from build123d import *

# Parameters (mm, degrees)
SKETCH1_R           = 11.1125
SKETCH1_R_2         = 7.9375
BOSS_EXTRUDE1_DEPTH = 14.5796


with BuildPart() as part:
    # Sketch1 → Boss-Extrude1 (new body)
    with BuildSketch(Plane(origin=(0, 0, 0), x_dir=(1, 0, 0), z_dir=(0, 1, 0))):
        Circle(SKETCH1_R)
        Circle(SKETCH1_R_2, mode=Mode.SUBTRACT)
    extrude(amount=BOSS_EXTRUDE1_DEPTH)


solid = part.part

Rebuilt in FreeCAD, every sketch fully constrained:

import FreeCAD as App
import Part
import Sketcher
Q = App.Units.Quantity

doc = App.newDocument("Part")
body = doc.addObject("PartDesign::Body", "Body")

# Sketch on XZ plane
sketch1 = doc.addObject("Sketcher::SketchObject", "Sketch")
body.addObject(sketch1)
sketch1.AttachmentSupport = (doc.XZ_Plane, [""])
sketch1.MapMode = "FlatFace"
sketch1.addGeometry(Part.Circle(App.Vector(0, 0, 0), App.Vector(0, 0, 1), 11), False)
sketch1.addGeometry(Part.Circle(App.Vector(0, 0, 0), App.Vector(0, 0, 1), 8), False)
sketch1.addConstraint(Sketcher.Constraint("Coincident", 0, 3, -1, 1))
sketch1.addConstraint(Sketcher.Constraint("Coincident", 1, 3, -1, 1))
sketch1.addConstraint(Sketcher.Constraint("Diameter", 0, Q("0.875 in")))
sketch1.addConstraint(Sketcher.Constraint("Diameter", 1, Q("0.625 in")))
pad1 = doc.addObject("PartDesign::Pad", "Pad")
body.addObject(pad1)
pad1.Profile = sketch1
pad1.Length = Q("0.574 in")
pad1.Reversed = True

doc.recompute()
